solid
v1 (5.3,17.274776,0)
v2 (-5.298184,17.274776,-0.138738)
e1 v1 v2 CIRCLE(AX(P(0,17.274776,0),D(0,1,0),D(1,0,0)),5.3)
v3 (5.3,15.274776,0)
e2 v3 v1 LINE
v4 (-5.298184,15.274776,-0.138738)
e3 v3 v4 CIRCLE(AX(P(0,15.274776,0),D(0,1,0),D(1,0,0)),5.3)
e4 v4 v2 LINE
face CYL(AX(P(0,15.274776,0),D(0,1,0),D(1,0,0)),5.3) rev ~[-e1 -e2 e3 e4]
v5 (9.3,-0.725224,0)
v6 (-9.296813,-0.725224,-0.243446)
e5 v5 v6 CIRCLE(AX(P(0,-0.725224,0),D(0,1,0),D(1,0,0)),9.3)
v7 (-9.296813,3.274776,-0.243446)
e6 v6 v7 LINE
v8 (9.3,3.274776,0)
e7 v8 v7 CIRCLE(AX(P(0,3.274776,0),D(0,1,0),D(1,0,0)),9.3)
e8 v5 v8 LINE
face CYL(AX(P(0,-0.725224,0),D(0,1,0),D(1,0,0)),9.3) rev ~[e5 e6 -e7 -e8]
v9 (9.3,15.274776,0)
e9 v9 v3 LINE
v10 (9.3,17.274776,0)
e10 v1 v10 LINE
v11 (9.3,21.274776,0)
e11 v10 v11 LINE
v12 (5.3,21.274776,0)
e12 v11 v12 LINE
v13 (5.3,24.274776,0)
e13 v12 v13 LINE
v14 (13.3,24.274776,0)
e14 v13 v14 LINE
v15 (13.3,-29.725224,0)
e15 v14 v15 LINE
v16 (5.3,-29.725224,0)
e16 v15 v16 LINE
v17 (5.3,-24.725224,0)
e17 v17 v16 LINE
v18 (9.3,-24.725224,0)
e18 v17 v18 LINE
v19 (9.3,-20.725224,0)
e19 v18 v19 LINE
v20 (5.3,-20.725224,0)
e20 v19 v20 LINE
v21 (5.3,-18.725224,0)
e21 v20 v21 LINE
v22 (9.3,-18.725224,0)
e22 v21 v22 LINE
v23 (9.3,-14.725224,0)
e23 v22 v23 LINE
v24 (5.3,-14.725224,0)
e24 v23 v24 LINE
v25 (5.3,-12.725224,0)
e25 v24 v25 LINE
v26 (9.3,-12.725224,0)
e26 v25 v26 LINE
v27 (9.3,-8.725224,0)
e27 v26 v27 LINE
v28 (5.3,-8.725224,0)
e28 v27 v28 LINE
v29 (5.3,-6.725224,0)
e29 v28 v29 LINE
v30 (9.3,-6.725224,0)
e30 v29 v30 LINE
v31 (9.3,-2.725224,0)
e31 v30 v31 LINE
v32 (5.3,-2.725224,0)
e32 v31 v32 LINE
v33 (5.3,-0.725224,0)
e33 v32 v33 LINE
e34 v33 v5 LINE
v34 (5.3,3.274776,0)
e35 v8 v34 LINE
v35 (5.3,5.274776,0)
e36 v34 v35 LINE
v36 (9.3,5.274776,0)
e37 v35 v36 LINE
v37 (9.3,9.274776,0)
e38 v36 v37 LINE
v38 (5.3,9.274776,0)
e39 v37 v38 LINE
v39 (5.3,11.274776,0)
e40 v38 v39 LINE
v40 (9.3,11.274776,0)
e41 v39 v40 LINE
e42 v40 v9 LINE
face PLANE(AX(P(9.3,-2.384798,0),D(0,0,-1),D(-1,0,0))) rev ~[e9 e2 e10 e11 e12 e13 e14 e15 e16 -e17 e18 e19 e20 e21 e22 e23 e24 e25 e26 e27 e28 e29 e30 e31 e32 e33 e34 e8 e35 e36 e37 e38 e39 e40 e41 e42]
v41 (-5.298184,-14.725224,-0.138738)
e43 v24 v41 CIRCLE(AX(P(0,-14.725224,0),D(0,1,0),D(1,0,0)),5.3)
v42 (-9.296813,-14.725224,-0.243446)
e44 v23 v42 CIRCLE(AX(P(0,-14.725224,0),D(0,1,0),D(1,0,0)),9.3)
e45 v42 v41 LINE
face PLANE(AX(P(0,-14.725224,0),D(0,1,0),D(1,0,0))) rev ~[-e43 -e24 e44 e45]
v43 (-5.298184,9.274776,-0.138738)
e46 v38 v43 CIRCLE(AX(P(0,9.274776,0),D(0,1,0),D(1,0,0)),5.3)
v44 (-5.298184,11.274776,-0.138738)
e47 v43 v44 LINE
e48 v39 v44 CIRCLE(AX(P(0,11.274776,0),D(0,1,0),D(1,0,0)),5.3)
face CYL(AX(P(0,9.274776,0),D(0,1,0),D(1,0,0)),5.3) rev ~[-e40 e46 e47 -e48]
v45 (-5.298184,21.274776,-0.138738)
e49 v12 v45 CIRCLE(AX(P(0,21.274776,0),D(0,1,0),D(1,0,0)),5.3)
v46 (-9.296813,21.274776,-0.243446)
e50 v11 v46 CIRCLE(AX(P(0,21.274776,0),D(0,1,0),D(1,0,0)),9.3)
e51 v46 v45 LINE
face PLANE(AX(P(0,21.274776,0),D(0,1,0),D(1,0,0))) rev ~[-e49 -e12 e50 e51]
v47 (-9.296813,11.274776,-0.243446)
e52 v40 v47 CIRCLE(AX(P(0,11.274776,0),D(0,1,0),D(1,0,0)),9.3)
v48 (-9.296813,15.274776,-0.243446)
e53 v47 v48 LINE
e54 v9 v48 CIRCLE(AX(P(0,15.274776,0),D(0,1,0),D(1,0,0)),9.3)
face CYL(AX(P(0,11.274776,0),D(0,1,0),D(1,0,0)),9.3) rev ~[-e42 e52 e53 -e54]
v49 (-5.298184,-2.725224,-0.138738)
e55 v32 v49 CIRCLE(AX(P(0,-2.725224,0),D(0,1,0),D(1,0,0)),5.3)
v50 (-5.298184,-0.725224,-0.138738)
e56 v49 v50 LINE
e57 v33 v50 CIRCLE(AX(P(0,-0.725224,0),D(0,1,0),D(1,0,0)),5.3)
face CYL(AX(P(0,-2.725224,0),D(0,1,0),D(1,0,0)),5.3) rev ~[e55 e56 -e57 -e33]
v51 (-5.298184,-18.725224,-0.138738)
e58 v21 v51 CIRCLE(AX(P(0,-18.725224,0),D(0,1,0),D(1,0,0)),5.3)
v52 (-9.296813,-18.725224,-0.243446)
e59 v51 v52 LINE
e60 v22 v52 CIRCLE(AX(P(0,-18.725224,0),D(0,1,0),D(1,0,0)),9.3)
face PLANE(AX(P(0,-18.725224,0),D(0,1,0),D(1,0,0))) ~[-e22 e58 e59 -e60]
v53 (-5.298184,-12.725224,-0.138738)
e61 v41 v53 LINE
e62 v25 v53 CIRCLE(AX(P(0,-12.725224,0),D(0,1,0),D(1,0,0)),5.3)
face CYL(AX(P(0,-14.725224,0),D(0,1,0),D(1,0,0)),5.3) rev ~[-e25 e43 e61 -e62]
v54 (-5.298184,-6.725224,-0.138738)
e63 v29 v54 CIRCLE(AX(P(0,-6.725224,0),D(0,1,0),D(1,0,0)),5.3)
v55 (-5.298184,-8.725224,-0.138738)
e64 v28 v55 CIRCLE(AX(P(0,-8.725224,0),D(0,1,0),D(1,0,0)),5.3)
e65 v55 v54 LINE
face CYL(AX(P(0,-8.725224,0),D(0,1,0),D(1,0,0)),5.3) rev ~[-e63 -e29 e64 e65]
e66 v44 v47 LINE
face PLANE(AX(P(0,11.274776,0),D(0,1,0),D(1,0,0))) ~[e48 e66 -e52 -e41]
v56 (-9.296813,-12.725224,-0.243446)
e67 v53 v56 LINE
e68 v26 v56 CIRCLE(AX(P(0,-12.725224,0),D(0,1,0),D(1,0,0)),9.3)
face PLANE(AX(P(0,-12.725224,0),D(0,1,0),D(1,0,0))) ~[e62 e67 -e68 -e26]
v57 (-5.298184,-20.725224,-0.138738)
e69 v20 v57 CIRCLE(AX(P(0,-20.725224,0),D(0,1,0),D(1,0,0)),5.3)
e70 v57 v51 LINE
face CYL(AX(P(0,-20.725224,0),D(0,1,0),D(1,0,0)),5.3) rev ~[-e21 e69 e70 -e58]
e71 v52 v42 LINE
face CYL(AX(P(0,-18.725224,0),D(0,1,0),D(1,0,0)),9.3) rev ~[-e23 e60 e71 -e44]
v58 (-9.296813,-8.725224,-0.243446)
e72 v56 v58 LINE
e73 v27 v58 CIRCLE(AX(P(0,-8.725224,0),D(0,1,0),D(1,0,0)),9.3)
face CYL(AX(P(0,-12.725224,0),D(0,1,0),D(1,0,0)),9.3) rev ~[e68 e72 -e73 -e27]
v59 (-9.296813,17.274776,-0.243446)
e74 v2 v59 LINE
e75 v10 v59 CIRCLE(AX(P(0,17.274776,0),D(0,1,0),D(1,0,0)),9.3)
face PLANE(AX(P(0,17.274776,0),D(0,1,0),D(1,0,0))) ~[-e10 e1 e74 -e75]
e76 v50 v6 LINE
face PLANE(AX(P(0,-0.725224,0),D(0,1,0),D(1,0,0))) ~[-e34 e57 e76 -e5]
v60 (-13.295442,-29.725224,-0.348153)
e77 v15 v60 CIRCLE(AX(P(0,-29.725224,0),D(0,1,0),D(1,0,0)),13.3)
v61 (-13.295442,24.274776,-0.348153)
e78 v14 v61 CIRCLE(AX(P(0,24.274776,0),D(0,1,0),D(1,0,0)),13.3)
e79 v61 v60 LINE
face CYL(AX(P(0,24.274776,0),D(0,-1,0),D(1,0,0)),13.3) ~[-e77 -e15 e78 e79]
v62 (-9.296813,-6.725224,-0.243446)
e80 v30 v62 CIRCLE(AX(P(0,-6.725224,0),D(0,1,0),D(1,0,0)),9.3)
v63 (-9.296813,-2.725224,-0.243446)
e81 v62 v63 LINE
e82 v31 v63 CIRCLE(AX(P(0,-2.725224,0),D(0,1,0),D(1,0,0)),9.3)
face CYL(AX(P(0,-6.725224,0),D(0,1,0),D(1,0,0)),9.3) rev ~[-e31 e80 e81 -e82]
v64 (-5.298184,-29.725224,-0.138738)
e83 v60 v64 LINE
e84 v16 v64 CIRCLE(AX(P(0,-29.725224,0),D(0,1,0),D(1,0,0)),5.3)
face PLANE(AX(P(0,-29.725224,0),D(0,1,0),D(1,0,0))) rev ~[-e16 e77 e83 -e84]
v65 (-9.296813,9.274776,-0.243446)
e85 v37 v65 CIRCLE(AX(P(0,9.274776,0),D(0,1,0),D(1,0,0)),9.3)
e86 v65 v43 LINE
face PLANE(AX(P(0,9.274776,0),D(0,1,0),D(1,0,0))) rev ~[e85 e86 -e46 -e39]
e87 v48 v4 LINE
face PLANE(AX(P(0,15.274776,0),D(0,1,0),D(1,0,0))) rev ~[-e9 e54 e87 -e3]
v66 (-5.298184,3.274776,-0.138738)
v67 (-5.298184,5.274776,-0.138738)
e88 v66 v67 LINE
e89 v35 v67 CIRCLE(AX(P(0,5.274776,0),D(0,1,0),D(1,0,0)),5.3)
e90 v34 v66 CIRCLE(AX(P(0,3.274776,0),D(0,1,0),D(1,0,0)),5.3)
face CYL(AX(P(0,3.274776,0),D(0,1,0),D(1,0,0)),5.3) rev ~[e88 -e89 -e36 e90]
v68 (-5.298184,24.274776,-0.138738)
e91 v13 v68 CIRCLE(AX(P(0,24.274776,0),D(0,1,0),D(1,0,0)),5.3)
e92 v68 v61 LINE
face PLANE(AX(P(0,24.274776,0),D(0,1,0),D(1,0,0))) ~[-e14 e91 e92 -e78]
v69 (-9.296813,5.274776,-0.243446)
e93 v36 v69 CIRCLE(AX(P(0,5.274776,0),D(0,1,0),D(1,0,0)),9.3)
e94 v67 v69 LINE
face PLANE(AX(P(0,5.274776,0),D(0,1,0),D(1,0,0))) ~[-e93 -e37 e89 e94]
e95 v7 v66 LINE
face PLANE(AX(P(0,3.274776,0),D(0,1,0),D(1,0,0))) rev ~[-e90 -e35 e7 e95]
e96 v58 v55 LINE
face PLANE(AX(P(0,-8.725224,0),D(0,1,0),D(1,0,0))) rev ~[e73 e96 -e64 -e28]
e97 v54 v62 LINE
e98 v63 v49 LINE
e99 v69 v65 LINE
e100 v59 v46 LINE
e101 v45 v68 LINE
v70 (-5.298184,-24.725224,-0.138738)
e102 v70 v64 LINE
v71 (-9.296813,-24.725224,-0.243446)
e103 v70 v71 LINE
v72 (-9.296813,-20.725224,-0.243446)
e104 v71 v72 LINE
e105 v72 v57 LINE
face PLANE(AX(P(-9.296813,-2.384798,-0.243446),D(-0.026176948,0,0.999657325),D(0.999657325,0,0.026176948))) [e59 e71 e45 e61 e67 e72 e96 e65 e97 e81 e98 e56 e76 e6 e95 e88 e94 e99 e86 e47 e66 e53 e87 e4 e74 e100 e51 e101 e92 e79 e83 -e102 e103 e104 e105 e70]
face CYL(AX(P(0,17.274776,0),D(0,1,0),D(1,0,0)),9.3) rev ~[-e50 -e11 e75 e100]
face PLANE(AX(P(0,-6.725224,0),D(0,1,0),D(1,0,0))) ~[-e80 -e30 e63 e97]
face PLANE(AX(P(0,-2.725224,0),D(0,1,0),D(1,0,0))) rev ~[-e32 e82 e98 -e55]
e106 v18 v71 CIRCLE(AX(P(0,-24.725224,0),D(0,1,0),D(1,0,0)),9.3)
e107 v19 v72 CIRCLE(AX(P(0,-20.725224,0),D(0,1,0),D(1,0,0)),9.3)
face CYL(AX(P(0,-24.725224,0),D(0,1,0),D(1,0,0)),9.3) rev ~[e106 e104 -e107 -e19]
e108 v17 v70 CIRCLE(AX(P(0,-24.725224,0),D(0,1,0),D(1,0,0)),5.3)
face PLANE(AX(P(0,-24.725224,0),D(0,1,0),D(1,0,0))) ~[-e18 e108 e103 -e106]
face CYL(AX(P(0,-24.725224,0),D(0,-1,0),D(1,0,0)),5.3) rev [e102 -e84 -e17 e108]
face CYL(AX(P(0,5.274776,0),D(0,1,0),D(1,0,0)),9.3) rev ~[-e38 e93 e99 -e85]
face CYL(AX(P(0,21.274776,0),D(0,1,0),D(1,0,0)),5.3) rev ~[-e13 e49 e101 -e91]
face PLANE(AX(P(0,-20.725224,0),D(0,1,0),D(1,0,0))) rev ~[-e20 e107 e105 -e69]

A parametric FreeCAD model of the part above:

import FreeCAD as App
import Part
import Sketcher
Q = App.Units.Quantity

doc = App.newDocument("Part")
body = doc.addObject("PartDesign::Body", "Body")

# Sketch on XY plane
sketch1 = body.newObject("Sketcher::SketchObject", "Sketch")
sketch1.AttachmentSupport = (doc.getObject("XY_Plane"), [""])
sketch1.MapMode = "FlatFace"
sketch1.addGeometry([
    Part.LineSegment(App.Vector(5.3, 24.3, 0), App.Vector(5.3, 21.3, 0)),  # 0
    Part.LineSegment(App.Vector(5.3, 21.3, 0), App.Vector(9.3, 21.3, 0)),  # 1
    Part.LineSegment(App.Vector(9.3, 21.3, 0), App.Vector(9.3, 17.3, 0)),  # 2
    Part.LineSegment(App.Vector(9.3, 17.3, 0), App.Vector(5.3, 17.3, 0)),  # 3
    Part.LineSegment(App.Vector(5.3, 17.3, 0), App.Vector(5.3, 15.3, 0)),  # 4
    Part.LineSegment(App.Vector(5.3, 15.3, 0), App.Vector(9.3, 15.3, 0)),  # 5
    Part.LineSegment(App.Vector(9.3, 15.3, 0), App.Vector(9.3, 11.3, 0)),  # 6
    Part.LineSegment(App.Vector(9.3, 11.3, 0), App.Vector(5.3, 11.3, 0)),  # 7
    Part.LineSegment(App.Vector(5.3, 11.3, 0), App.Vector(5.3, 9.3, 0)),  # 8
    Part.LineSegment(App.Vector(5.3, 9.3, 0), App.Vector(9.3, 9.3, 0)),  # 9
    Part.LineSegment(App.Vector(9.3, 9.3, 0), App.Vector(9.3, 5.3, 0)),  # 10
    Part.LineSegment(App.Vector(9.3, 5.3, 0), App.Vector(5.3, 5.3, 0)),  # 11
    Part.LineSegment(App.Vector(5.3, 5.3, 0), App.Vector(5.3, 3.3, 0)),  # 12
    Part.LineSegment(App.Vector(5.3, 3.3, 0), App.Vector(9.3, 3.3, 0)),  # 13
    Part.LineSegment(App.Vector(9.3, 3.3, 0), App.Vector(9.3, -0.7, 0)),  # 14
    Part.LineSegment(App.Vector(9.3, -0.7, 0), App.Vector(5.3, -0.7, 0)),  # 15
    Part.LineSegment(App.Vector(5.3, -0.7, 0), App.Vector(5.3, -2.7, 0)),  # 16
    Part.LineSegment(App.Vector(5.3, -2.7, 0), App.Vector(9.3, -2.7, 0)),  # 17
    Part.LineSegment(App.Vector(9.3, -2.7, 0), App.Vector(9.3, -6.7, 0)),  # 18
    Part.LineSegment(App.Vector(9.3, -6.7, 0), App.Vector(5.3, -6.7, 0)),  # 19
    Part.LineSegment(App.Vector(5.3, -6.7, 0), App.Vector(5.3, -8.7, 0)),  # 20
    Part.LineSegment(App.Vector(5.3, -8.7, 0), App.Vector(9.3, -8.7, 0)),  # 21
    Part.LineSegment(App.Vector(9.3, -8.7, 0), App.Vector(9.3, -12.7, 0)),  # 22
    Part.LineSegment(App.Vector(9.3, -12.7, 0), App.Vector(5.3, -12.7, 0)),  # 23
    Part.LineSegment(App.Vector(5.3, -12.7, 0), App.Vector(5.3, -14.7, 0)),  # 24
    Part.LineSegment(App.Vector(5.3, -14.7, 0), App.Vector(9.3, -14.7, 0)),  # 25
    Part.LineSegment(App.Vector(9.3, -14.7, 0), App.Vector(9.3, -18.7, 0)),  # 26
    Part.LineSegment(App.Vector(9.3, -18.7, 0), App.Vector(5.3, -18.7, 0)),  # 27
    Part.LineSegment(App.Vector(5.3, -18.7, 0), App.Vector(5.3, -20.7, 0)),  # 28
    Part.LineSegment(App.Vector(5.3, -20.7, 0), App.Vector(9.3, -20.7, 0)),  # 29
    Part.LineSegment(App.Vector(9.3, -20.7, 0), App.Vector(9.3, -24.7, 0)),  # 30
    Part.LineSegment(App.Vector(9.3, -24.7, 0), App.Vector(5.3, -24.7, 0)),  # 31
    Part.LineSegment(App.Vector(5.3, -24.7, 0), App.Vector(5.3, -29.7, 0)),  # 32
    Part.LineSegment(App.Vector(5.3, -29.7, 0), App.Vector(13.3, -29.7, 0)),  # 33
    Part.LineSegment(App.Vector(13.3, -29.7, 0), App.Vector(13.3, 24.3, 0)),  # 34
    Part.LineSegment(App.Vector(13.3, 24.3, 0), App.Vector(5.3, 24.3, 0)),  # 35
], False)
sketch1.addConstraint([
    Sketcher.Constraint("Coincident", 0, 2, 1, 1),
    Sketcher.Constraint("Coincident", 1, 2, 2, 1),
    Sketcher.Constraint("Coincident", 2, 2, 3, 1),
    Sketcher.Constraint("Coincident", 3, 2, 4, 1),
    Sketcher.Constraint("Coincident", 4, 2, 5, 1),
    Sketcher.Constraint("Coincident", 5, 2, 6, 1),
    Sketcher.Constraint("Coincident", 6, 2, 7, 1),
    Sketcher.Constraint("Coincident", 7, 2, 8, 1),
    Sketcher.Constraint("Coincident", 8, 2, 9, 1),
    Sketcher.Constraint("Coincident", 9, 2, 10, 1),
    Sketcher.Constraint("Coincident", 10, 2, 11, 1),
    Sketcher.Constraint("Coincident", 11, 2, 12, 1),
    Sketcher.Constraint("Coincident", 12, 2, 13, 1),
    Sketcher.Constraint("Coincident", 13, 2, 14, 1),
    Sketcher.Constraint("Coincident", 14, 2, 15, 1),
    Sketcher.Constraint("Coincident", 15, 2, 16, 1),
    Sketcher.Constraint("Coincident", 16, 2, 17, 1),
    Sketcher.Constraint("Coincident", 17, 2, 18, 1),
    Sketcher.Constraint("Coincident", 18, 2, 19, 1),
    Sketcher.Constraint("Coincident", 19, 2, 20, 1),
    Sketcher.Constraint("Coincident", 20, 2, 21, 1),
    Sketcher.Constraint("Coincident", 21, 2, 22, 1),
    Sketcher.Constraint("Coincident", 22, 2, 23, 1),
    Sketcher.Constraint("Coincident", 23, 2, 24, 1),
    Sketcher.Constraint("Coincident", 24, 2, 25, 1),
    Sketcher.Constraint("Coincident", 25, 2, 26, 1),
    Sketcher.Constraint("Coincident", 26, 2, 27, 1),
    Sketcher.Constraint("Coincident", 27, 2, 28, 1),
    Sketcher.Constraint("Coincident", 28, 2, 29, 1),
    Sketcher.Constraint("Coincident", 29, 2, 30, 1),
    Sketcher.Constraint("Coincident", 30, 2, 31, 1),
    Sketcher.Constraint("Coincident", 31, 2, 32, 1),
    Sketcher.Constraint("Coincident", 32, 2, 33, 1),
    Sketcher.Constraint("Coincident", 33, 2, 34, 1),
    Sketcher.Constraint("Coincident", 34, 2, 35, 1),
    Sketcher.Constraint("Coincident", 35, 2, 0, 1),
    Sketcher.Constraint("Vertical", 0),
    Sketcher.Constraint("Horizontal", 1),
    Sketcher.Constraint("Vertical", 2),
    Sketcher.Constraint("Horizontal", 3),
    Sketcher.Constraint("Vertical", 4),
    Sketcher.Constraint("Horizontal", 5),
    Sketcher.Constraint("Vertical", 6),
    Sketcher.Constraint("Horizontal", 7),
    Sketcher.Constraint("Vertical", 8),
    Sketcher.Constraint("Horizontal", 9),
    Sketcher.Constraint("Vertical", 10),
    Sketcher.Constraint("Horizontal", 11),
    Sketcher.Constraint("Vertical", 12),
    Sketcher.Constraint("Horizontal", 13),
    Sketcher.Constraint("Vertical", 14),
    Sketcher.Constraint("Horizontal", 15),
    Sketcher.Constraint("Vertical", 16),
    Sketcher.Constraint("Horizontal", 17),
    Sketcher.Constraint("Vertical", 18),
    Sketcher.Constraint("Horizontal", 19),
    Sketcher.Constraint("Vertical", 20),
    Sketcher.Constraint("Horizontal", 21),
    Sketcher.Constraint("Vertical", 22),
    Sketcher.Constraint("Horizontal", 23),
    Sketcher.Constraint("Vertical", 24),
    Sketcher.Constraint("Horizontal", 25),
    Sketcher.Constraint("Vertical", 26),
    Sketcher.Constraint("Horizontal", 27),
    Sketcher.Constraint("Vertical", 28),
    Sketcher.Constraint("Horizontal", 29),
    Sketcher.Constraint("Vertical", 30),
    Sketcher.Constraint("Horizontal", 31),
    Sketcher.Constraint("Vertical", 32),
    Sketcher.Constraint("Horizontal", 33),
    Sketcher.Constraint("Vertical", 34),
    Sketcher.Constraint("Horizontal", 35),
    Sketcher.Constraint("Vertical", 0, 2, 3, 2),
    Sketcher.Constraint("Vertical", 2, 2, 5, 2),
    Sketcher.Constraint("Vertical", 4, 2, 7, 2),
    Sketcher.Constraint("Vertical", 6, 2, 9, 2),
    Sketcher.Constraint("Vertical", 8, 2, 11, 2),
    Sketcher.Constraint("Vertical", 10, 2, 13, 2),
    Sketcher.Constraint("Vertical", 12, 2, 15, 2),
    Sketcher.Constraint("Vertical", 14, 2, 17, 2),
    Sketcher.Constraint("Vertical", 16, 2, 19, 2),
    Sketcher.Constraint("Vertical", 18, 2, 21, 2),
    Sketcher.Constraint("Vertical", 20, 2, 23, 2),
    Sketcher.Constraint("Vertical", 22, 2, 25, 2),
    Sketcher.Constraint("Vertical", 24, 2, 27, 2),
    Sketcher.Constraint("Vertical", 26, 2, 29, 2),
    Sketcher.Constraint("Vertical", 28, 2, 31, 2),
    Sketcher.Constraint("Equal", 31, 2),
    Sketcher.Constraint("Equal", 2, 6),
    Sketcher.Constraint("Equal", 4, 8),
    Sketcher.Constraint("Equal", 6, 10),
    Sketcher.Constraint("Equal", 8, 12),
    Sketcher.Constraint("Equal", 10, 14),
    Sketcher.Constraint("Equal", 12, 16),
    Sketcher.Constraint("Equal", 14, 18),
    Sketcher.Constraint("Equal", 16, 20),
    Sketcher.Constraint("Equal", 18, 22),
    Sketcher.Constraint("Equal", 20, 24),
    Sketcher.Constraint("Equal", 22, 26),
    Sketcher.Constraint("Equal", 24, 28),
    Sketcher.Constraint("Equal", 26, 30),
    Sketcher.Constraint("DistanceX", 1, 1, 1, 2, Q("4 mm")),
    Sketcher.Constraint("DistanceX", 33, 1, 33, 2, Q("8 mm")),
    Sketcher.Constraint("DistanceY", 0, 2, 0, 1, Q("3 mm")),
    Sketcher.Constraint("DistanceY", 4, 2, 4, 1, Q("2 mm")),
    Sketcher.Constraint("DistanceY", 32, 2, 32, 1, Q("5 mm")),
    Sketcher.Constraint("DistanceX", -1, 1, 0, 2, Q("5.3 mm")),
    Sketcher.Constraint("DistanceY", -1, 1, 0, 2, Q("21.274776 mm")),
])
revolution = body.newObject("PartDesign::Revolution", "Revolution")
revolution.Profile = sketch1
revolution.ReferenceAxis = (sketch1, ["V_Axis"])
revolution.Angle = 178.5

doc.recompute()
